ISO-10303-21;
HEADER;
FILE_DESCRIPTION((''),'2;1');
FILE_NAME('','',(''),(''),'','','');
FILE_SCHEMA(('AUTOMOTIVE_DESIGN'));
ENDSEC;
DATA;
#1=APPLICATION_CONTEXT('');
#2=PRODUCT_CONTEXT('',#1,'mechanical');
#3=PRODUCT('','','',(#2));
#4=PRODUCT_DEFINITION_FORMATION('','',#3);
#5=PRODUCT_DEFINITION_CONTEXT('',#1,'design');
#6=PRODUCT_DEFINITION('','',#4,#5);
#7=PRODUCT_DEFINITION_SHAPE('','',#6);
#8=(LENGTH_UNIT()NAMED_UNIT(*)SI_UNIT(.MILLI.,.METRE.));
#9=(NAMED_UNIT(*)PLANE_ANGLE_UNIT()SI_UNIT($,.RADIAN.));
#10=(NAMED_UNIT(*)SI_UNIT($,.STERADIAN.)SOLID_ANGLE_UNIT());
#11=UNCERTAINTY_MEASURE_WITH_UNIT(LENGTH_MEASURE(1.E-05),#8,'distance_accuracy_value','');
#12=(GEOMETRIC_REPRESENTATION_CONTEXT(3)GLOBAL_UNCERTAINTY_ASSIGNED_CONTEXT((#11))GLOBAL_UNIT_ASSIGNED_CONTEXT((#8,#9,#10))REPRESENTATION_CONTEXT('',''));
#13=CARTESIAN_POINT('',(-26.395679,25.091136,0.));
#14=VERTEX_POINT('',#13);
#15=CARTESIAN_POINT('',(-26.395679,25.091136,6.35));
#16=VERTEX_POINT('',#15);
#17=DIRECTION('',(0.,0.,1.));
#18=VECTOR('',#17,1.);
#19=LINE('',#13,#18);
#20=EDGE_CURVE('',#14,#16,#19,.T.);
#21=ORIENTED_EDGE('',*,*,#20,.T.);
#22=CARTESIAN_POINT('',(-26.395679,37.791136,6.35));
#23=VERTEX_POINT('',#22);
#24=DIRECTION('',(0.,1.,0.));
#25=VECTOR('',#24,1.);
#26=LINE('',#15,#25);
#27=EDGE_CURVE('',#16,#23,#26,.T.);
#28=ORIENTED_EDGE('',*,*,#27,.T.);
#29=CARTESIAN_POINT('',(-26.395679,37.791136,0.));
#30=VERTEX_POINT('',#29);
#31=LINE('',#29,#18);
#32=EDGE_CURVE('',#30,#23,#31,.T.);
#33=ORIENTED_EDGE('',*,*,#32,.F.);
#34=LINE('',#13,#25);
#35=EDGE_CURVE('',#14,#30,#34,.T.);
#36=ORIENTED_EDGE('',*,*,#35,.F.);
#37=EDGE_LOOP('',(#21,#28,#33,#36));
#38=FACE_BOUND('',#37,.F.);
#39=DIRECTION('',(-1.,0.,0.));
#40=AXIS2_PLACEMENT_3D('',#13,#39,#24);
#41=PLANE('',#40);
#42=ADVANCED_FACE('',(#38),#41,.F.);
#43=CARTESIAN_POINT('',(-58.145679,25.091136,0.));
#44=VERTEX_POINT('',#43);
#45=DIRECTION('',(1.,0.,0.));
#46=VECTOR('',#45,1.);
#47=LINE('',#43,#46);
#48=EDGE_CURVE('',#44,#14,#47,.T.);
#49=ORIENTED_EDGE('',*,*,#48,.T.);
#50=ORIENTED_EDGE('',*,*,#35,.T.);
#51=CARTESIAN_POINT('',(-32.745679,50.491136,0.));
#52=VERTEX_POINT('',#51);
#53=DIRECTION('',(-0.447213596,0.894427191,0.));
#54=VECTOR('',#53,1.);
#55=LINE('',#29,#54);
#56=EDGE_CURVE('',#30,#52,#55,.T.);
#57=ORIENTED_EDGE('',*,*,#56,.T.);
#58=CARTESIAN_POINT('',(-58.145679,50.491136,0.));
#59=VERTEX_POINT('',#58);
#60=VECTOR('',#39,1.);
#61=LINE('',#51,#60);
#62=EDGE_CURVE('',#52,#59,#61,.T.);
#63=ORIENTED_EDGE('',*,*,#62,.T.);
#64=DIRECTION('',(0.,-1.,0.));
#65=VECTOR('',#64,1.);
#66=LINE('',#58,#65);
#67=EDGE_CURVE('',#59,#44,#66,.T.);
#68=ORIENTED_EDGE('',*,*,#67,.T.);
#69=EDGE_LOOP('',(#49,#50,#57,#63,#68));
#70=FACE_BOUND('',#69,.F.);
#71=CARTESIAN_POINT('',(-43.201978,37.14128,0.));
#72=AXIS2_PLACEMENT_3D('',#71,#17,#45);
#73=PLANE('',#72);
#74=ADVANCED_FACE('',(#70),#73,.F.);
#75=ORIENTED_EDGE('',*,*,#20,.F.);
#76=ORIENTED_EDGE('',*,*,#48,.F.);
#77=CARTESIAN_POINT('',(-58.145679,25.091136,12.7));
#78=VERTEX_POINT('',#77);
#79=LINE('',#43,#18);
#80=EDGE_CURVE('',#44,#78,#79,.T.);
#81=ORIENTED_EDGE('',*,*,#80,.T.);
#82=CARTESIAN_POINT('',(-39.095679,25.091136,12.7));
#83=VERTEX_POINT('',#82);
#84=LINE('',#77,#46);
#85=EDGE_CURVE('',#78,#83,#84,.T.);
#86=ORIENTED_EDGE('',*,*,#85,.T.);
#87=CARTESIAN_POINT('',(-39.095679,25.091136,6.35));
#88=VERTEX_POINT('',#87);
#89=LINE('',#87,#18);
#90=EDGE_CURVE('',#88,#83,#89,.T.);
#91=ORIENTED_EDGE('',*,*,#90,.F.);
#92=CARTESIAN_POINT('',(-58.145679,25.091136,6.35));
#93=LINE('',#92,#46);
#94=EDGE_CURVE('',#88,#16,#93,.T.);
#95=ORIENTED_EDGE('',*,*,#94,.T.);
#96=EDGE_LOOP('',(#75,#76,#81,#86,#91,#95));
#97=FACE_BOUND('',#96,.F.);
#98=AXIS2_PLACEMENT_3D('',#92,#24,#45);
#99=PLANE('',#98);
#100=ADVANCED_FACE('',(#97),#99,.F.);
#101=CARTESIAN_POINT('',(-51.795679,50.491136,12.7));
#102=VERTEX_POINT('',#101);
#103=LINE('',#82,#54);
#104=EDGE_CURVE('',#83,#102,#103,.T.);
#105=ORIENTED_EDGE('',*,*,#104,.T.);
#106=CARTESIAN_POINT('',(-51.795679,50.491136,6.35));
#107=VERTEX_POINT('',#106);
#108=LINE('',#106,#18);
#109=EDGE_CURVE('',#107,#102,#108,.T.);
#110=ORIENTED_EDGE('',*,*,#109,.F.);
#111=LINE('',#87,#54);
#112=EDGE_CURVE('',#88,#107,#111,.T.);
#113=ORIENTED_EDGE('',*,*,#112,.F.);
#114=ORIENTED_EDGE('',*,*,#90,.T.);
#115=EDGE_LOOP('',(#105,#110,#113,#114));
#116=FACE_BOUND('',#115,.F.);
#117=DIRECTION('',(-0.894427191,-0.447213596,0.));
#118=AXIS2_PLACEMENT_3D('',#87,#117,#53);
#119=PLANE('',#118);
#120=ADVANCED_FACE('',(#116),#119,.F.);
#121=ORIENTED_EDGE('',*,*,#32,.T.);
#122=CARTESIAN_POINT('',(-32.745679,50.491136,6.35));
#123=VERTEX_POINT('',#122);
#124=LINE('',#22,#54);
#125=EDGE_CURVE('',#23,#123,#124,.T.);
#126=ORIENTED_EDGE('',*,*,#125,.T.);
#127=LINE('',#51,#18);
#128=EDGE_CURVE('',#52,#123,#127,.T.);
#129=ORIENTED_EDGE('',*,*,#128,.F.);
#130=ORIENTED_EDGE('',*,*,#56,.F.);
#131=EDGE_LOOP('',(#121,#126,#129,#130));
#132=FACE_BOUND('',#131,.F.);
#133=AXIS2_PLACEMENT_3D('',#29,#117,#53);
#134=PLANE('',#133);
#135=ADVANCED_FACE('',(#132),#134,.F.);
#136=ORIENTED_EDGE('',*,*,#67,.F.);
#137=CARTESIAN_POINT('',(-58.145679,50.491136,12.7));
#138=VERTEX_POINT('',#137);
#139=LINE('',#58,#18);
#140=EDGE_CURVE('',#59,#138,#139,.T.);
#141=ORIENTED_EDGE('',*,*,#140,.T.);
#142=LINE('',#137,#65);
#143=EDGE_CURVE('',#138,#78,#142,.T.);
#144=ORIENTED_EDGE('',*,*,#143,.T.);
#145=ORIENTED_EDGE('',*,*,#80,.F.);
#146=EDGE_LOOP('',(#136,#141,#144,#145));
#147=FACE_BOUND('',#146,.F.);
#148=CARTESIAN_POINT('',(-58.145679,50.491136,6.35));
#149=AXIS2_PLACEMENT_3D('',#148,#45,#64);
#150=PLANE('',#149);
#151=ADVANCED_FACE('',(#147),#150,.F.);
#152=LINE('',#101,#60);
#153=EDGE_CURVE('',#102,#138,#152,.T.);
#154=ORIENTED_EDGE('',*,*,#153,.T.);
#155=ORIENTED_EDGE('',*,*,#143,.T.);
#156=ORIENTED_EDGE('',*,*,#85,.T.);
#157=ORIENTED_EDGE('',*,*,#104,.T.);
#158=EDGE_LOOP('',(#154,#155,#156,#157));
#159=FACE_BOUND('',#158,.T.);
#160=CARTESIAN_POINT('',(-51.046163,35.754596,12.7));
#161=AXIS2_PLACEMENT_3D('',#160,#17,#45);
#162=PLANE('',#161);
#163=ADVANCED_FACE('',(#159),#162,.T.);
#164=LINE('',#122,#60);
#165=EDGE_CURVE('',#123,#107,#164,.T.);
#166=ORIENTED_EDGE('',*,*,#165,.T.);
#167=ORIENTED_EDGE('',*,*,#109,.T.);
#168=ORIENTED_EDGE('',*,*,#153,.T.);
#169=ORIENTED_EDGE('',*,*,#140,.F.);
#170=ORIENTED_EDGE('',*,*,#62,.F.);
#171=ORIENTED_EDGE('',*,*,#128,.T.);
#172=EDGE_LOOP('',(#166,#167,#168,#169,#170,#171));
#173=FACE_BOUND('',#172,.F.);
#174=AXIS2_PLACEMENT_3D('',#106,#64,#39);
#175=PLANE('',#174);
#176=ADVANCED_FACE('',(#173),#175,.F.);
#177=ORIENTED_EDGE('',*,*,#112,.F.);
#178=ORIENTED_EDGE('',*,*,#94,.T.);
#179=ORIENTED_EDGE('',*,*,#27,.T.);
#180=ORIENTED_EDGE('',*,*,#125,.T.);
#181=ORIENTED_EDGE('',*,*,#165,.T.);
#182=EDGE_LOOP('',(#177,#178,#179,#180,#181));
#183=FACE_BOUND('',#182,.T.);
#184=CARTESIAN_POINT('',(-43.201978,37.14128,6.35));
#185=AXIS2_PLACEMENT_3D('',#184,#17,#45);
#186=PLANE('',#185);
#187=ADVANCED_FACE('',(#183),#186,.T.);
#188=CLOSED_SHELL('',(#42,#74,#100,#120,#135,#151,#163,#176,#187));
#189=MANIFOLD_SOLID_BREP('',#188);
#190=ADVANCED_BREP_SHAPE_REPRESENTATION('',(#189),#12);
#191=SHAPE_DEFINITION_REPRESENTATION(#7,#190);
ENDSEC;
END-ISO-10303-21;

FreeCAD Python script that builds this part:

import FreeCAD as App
import Part
import Sketcher
from FreeCAD import Vector
Q = App.Units.Quantity

doc = App.newDocument("Part")
body = doc.addObject("PartDesign::Body", "Body")

# Sketch on XY plane
sketch1 = body.newObject("Sketcher::SketchObject", "Sketch")
sketch1.AttachmentSupport = (doc.getObject("XY_Plane"), [""])
sketch1.MapMode = "FlatFace"
sketch1.addGeometry([
    Part.LineSegment(Vector(-32.745679, 50.491136, 0), Vector(-58.145679, 50.491136, 0)),  # 0
    Part.LineSegment(Vector(-58.145679, 50.491136, 0), Vector(-58.145679, 25.091136, 0)),  # 1
    Part.LineSegment(Vector(-58.145679, 25.091136, 0), Vector(-26.395679, 25.091136, 0)),  # 2
    Part.LineSegment(Vector(-26.395679, 25.091136, 0), Vector(-26.395679, 37.791136, 0)),  # 3
    Part.LineSegment(Vector(-26.395679, 37.791136, 0), Vector(-32.745679, 50.491136, 0)),  # 4
], False)
sketch1.addConstraint([
    Sketcher.Constraint("Coincident", 0, 2, 1, 1),
    Sketcher.Constraint("Coincident", 1, 2, 2, 1),
    Sketcher.Constraint("Coincident", 2, 2, 3, 1),
    Sketcher.Constraint("Coincident", 3, 2, 4, 1),
    Sketcher.Constraint("Coincident", 4, 2, 0, 1),
    Sketcher.Constraint("Horizontal", 0),
    Sketcher.Constraint("Vertical", 1),
    Sketcher.Constraint("Horizontal", 2),
    Sketcher.Constraint("Vertical", 3),
    Sketcher.Constraint("Equal", 0, 1),
    Sketcher.Constraint("DistanceX", 0, 2, 0, 1, Q("1 in")),
    Sketcher.Constraint("DistanceY", 3, 1, 3, 2, Q("0.5 in")),
    Sketcher.Constraint("DistanceX", 2, 1, 2, 2, Q("1.25 in")),
    Sketcher.Constraint("DistanceX", 0, 2, -1, 1, Q("2.2892 in")),
    Sketcher.Constraint("DistanceY", -1, 1, 0, 2, Q("50.491136 mm")),
])
pad1 = body.newObject("PartDesign::Pad", "Pad")
pad1.Profile = sketch1
pad1.Length = Q("0.25 in")

# Sketch on XY plane
sketch2 = body.newObject("Sketcher::SketchObject", "Sketch001")
sketch2.AttachmentSupport = (doc.getObject("XY_Plane"), [""])
sketch2.MapMode = "FlatFace"
sketch2.AttachmentOffset = App.Placement(Vector(0, 0, 0.25 * 25.4), App.Rotation())
sketch2.addGeometry([
    Part.LineSegment(Vector(-51.795679, 50.491136, 0), Vector(-58.145679, 50.491136, 0)),
    Part.LineSegment(Vector(-58.145679, 50.491136, 0), Vector(-58.145679, 25.091136, 0)),
    Part.LineSegment(Vector(-58.145679, 25.091136, 0), Vector(-39.095679, 25.091136, 0)),
    Part.LineSegment(Vector(-39.095679, 25.091136, 0), Vector(-51.795679, 50.491136, 0)),
], False)
sketch2.addConstraint([
    Sketcher.Constraint("Coincident", 0, 2, 1, 1),
    Sketcher.Constraint("Coincident", 1, 2, 2, 1),
    Sketcher.Constraint("Coincident", 2, 2, 3, 1),
    Sketcher.Constraint("Coincident", 3, 2, 0, 1),
    Sketcher.Constraint("Horizontal", 0),
    Sketcher.Constraint("Vertical", 1),
    Sketcher.Constraint("Horizontal", 2),
    Sketcher.Constraint("DistanceY", 1, 2, 1, 1, Q("1 in")),
    Sketcher.Constraint("DistanceX", 0, 2, 0, 1, Q("0.25 in")),
    Sketcher.Constraint("DistanceX", 2, 1, 2, 2, Q("0.75 in")),
    Sketcher.Constraint("DistanceX", 0, 2, -1, 1, Q("2.2892 in")),
    Sketcher.Constraint("DistanceY", -1, 1, 0, 2, Q("50.491136 mm")),
])
pad2 = body.newObject("PartDesign::Pad", "Pad001")
pad2.Profile = sketch2
pad2.Length = Q("0.25 in")

doc.recompute()
